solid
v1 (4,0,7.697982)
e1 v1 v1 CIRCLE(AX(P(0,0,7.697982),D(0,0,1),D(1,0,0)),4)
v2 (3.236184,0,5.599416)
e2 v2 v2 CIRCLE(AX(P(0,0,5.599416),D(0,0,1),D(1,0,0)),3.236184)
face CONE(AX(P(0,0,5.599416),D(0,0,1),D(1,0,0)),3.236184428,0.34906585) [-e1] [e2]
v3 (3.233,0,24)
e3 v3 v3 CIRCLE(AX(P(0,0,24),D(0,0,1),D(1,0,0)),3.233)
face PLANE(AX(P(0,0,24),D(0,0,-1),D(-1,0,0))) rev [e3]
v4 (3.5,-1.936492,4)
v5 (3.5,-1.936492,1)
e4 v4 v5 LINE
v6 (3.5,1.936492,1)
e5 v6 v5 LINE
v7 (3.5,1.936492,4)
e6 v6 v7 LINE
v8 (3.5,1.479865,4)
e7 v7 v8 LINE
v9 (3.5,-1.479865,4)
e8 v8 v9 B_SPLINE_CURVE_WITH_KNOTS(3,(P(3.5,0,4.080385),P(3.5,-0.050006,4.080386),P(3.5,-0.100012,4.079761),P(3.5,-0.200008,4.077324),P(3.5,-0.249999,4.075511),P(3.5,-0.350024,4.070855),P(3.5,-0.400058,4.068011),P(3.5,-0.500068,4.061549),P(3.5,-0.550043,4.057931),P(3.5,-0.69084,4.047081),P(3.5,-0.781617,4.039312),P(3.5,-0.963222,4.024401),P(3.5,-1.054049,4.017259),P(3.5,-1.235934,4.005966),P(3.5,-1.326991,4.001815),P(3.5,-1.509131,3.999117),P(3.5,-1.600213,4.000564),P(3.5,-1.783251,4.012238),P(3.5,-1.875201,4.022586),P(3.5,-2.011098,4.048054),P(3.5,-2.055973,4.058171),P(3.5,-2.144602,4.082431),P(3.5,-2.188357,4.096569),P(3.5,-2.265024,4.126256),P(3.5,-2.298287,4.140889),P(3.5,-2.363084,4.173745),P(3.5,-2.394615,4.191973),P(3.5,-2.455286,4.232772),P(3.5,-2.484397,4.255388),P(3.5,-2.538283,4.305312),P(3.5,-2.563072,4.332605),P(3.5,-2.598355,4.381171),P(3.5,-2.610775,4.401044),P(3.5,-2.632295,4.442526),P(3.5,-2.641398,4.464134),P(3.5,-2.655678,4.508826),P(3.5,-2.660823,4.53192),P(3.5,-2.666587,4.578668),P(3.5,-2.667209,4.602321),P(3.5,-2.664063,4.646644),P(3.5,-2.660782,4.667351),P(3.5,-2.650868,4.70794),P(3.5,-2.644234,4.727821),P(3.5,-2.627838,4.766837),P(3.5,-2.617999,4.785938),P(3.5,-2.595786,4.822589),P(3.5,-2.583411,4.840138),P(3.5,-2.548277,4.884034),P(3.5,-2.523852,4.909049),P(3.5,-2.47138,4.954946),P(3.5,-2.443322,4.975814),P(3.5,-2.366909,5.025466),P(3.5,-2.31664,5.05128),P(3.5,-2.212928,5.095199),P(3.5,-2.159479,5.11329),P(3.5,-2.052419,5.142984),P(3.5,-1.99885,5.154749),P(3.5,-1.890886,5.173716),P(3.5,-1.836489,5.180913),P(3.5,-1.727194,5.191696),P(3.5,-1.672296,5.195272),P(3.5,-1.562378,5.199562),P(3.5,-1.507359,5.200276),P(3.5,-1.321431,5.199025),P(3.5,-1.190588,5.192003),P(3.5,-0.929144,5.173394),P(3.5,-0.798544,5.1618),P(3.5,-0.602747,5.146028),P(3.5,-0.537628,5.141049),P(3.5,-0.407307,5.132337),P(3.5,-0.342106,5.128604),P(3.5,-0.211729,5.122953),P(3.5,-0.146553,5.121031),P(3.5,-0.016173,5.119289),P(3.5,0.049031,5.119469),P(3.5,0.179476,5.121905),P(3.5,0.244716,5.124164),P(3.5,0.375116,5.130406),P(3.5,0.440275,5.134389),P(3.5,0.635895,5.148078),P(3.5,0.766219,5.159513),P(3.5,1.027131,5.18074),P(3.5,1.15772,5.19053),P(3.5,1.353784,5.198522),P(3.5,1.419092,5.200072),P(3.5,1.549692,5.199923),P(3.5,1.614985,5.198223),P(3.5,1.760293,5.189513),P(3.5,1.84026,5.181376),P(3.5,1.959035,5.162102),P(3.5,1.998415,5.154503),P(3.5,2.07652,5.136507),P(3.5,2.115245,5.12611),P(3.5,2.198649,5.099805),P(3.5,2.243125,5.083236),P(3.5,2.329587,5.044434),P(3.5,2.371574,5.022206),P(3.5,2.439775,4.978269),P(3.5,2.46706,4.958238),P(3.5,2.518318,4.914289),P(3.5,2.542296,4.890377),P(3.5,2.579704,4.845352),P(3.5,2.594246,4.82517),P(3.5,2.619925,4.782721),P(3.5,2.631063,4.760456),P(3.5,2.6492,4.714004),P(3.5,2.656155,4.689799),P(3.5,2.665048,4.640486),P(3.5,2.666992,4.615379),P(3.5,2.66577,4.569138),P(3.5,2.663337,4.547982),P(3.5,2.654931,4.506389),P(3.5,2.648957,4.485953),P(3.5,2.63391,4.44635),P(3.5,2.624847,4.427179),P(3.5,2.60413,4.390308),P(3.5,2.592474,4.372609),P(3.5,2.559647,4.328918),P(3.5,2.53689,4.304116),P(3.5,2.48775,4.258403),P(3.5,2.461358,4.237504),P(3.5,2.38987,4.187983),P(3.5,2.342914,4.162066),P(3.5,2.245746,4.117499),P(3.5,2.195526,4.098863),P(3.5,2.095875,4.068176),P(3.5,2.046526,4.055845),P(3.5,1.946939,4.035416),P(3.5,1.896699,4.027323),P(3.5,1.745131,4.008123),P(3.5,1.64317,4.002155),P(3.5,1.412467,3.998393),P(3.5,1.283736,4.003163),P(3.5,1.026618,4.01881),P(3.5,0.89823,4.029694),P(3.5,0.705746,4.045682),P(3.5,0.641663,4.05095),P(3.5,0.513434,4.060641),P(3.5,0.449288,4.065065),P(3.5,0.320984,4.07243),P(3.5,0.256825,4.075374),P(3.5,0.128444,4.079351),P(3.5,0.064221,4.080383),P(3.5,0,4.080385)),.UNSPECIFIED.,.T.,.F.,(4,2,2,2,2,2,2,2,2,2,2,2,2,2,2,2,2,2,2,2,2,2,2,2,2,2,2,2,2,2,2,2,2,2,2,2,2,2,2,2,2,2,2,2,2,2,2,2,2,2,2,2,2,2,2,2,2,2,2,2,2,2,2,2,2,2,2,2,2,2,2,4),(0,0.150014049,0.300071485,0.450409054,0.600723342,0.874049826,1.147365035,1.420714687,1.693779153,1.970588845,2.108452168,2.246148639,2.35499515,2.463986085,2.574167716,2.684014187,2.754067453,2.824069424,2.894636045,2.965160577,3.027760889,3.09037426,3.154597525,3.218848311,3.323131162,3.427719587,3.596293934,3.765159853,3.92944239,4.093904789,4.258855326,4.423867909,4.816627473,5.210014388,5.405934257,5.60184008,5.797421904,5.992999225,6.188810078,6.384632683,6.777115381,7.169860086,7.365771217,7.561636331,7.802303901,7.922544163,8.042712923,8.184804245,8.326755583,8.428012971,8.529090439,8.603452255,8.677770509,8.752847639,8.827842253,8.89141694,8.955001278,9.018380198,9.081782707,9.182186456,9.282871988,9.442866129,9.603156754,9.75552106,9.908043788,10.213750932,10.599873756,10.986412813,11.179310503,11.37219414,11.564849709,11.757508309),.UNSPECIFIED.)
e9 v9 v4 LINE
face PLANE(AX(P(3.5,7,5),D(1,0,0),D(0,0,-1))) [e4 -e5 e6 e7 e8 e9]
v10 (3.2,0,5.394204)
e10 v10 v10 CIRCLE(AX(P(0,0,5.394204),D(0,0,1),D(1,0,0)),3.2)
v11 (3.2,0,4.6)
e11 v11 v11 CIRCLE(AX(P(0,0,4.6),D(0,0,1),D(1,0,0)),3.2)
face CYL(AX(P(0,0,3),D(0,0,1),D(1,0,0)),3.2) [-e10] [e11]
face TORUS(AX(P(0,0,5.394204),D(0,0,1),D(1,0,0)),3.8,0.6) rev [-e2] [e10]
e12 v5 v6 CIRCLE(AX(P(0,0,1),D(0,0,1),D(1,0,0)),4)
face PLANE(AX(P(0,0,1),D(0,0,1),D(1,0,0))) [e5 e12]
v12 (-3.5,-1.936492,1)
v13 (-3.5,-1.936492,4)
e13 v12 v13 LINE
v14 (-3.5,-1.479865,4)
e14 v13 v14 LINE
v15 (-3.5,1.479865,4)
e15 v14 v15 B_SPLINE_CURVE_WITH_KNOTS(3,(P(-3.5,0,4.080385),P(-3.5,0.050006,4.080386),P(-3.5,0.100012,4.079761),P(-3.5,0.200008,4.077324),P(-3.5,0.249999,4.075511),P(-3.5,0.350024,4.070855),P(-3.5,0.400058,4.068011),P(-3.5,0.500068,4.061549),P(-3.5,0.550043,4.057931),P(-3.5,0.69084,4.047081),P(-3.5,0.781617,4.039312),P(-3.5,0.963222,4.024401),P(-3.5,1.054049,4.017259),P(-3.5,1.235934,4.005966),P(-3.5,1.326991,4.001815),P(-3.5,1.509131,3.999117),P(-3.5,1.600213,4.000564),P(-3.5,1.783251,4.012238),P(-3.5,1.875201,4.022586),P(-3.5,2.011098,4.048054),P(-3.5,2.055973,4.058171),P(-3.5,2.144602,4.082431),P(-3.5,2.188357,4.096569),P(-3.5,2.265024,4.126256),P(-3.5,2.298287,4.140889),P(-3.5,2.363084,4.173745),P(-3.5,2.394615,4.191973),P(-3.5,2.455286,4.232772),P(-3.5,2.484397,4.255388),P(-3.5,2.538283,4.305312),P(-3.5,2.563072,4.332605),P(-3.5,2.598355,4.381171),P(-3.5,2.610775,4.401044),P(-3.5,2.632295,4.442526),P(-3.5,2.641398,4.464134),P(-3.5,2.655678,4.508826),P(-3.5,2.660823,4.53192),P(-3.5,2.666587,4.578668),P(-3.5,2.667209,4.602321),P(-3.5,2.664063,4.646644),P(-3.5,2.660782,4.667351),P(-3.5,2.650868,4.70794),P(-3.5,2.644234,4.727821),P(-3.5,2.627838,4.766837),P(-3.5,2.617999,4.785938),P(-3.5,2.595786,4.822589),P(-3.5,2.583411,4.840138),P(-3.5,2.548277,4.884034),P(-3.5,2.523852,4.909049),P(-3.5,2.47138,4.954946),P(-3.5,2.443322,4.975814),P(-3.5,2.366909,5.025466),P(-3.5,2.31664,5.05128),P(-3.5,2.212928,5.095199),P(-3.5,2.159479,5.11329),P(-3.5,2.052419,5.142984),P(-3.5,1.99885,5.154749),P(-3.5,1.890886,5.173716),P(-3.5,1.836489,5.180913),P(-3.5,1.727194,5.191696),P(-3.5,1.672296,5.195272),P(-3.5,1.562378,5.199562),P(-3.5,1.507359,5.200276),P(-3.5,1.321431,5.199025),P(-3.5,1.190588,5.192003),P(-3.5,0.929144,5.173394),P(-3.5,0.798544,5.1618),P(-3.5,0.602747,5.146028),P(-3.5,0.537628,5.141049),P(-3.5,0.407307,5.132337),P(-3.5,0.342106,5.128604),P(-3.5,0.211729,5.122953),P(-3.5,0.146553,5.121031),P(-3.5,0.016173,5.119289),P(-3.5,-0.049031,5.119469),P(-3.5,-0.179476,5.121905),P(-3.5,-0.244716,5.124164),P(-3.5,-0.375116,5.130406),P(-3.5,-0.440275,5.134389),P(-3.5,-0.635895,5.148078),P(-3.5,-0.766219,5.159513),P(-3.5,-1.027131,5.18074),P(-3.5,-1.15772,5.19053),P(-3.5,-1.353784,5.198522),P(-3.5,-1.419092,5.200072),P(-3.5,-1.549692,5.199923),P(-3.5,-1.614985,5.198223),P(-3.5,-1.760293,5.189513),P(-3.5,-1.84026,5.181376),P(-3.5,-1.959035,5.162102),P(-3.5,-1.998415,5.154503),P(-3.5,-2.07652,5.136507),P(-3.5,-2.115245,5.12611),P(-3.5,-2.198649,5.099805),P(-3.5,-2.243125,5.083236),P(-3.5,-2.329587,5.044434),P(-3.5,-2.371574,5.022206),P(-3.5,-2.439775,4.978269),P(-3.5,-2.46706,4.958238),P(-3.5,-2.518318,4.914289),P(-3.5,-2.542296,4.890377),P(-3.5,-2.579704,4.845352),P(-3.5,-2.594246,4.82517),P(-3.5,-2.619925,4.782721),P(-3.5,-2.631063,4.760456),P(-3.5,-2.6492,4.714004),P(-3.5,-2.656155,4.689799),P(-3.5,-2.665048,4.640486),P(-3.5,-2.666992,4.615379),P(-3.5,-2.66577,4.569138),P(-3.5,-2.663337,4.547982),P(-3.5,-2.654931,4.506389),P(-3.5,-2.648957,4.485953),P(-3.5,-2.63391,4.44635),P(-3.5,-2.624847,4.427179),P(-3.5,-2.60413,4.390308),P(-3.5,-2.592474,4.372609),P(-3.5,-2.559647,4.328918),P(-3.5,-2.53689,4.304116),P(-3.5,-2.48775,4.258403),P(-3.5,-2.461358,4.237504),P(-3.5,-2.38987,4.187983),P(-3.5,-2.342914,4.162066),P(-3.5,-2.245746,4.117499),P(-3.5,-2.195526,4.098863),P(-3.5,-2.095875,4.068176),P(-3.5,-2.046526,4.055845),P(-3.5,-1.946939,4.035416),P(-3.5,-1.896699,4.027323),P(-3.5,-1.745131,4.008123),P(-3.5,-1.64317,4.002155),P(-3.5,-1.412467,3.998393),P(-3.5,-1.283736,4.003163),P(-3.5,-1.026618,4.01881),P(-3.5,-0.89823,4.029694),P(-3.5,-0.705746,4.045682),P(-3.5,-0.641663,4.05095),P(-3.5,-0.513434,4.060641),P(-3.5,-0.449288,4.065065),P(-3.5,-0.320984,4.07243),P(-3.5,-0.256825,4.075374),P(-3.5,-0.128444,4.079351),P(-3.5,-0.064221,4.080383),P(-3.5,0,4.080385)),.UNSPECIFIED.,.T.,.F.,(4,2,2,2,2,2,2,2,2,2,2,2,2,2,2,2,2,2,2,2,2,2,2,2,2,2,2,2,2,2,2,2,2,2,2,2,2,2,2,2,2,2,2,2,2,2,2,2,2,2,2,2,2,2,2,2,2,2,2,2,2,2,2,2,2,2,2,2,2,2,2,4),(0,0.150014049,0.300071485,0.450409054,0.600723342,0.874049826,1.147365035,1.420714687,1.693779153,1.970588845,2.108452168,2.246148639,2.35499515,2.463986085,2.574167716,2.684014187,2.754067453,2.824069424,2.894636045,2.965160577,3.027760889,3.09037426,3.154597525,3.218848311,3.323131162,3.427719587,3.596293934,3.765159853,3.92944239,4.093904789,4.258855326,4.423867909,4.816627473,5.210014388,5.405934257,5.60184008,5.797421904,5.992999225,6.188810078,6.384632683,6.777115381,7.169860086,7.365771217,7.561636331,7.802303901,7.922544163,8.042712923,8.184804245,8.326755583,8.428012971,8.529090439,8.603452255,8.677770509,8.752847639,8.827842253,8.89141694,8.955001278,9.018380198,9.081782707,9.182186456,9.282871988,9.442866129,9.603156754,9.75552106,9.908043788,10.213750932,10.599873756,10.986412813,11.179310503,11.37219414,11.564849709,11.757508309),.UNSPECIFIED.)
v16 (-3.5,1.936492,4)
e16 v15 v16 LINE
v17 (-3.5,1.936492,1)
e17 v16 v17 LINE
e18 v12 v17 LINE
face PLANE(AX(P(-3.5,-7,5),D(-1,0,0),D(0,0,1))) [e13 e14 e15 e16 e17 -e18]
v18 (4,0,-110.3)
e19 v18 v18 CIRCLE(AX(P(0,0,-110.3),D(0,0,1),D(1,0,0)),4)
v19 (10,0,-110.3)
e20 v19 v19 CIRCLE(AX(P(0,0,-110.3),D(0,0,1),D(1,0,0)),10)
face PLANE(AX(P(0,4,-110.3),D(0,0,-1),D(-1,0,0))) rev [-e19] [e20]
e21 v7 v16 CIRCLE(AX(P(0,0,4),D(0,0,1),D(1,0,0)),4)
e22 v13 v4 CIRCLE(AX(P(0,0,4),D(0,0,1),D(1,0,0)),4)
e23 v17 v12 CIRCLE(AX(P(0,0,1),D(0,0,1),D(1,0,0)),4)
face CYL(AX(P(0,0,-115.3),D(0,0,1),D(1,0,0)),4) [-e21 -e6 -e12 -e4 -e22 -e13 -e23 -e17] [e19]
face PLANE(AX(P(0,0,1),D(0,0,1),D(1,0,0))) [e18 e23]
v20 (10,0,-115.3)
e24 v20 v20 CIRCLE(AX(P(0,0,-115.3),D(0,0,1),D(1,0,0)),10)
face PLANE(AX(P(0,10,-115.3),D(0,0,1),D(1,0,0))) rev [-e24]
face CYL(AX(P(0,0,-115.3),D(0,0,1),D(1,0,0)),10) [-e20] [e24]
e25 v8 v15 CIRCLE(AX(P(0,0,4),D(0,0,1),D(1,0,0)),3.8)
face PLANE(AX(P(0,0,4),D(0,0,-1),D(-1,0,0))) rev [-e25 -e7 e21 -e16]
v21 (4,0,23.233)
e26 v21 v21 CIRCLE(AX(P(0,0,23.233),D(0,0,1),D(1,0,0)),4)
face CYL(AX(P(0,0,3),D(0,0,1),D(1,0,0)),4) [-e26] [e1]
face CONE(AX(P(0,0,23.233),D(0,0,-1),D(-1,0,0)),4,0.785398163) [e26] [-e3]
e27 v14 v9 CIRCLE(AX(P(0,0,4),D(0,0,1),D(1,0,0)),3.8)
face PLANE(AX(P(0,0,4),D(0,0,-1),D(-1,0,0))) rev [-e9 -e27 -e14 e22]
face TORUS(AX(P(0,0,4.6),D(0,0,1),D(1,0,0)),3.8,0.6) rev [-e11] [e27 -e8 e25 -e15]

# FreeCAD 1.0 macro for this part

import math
import FreeCAD as App
import Part
import Sketcher

V = App.Vector
Q = App.Units.Quantity

doc = App.newDocument("Part")
params = doc.addObject("Spreadsheet::Sheet", "Params")
for row, (alias, value) in enumerate([
    ("sketch1_width", "4 mm"),
    ("sketch1_width2", "10 mm"),
    ("sketch1_height", "5 mm"),
    ("sketch1_height2", "119.3 mm"),
    ("revolution_angle", "360 deg"),
    ("sketch2_radius", "0.6 mm"),
    ("sketch2_width", "4 mm"),
    ("sketch2_height", "21 mm"),
    ("sketch2_height2", "1 mm"),
    ("sketch2_width2", "0.2 mm"),
    ("revolution2_angle", "360 deg"),
    ("sketch3_width", "7 mm"),
    ("sketch3_width2", "14 mm"),
    ("sketch3_height", "21 mm"),
    ("pocket1_length", "4 mm"),
], start=1):
    params.set(f"A{row}", alias)
    params.set(f"B{row}", "=" + value)
    params.setAlias(f"B{row}", alias)

body = doc.addObject("PartDesign::Body", "Body")

sketch1 = body.newObject("Sketcher::SketchObject", "Sketch")
sketch1.AttachmentSupport = (doc.getObject("YZ_Plane"), [""])
sketch1.MapMode = "FlatFace"
sketch1.addGeometry([
    Part.LineSegment(V(4, 4, 0), V(0, 4, 0)),
    Part.LineSegment(V(0, 4, 0), V(0, -115.3, 0)),
    Part.LineSegment(V(0, -115.3, 0), V(10, -115.3, 0)),
    Part.LineSegment(V(10, -115.3, 0), V(10, -110.3, 0)),
    Part.LineSegment(V(10, -110.3, 0), V(4, -110.3, 0)),
    Part.LineSegment(V(4, -110.3, 0), V(4, 4, 0)),
], False)
sketch1.addConstraint([
    Sketcher.Constraint("Coincident", 0, 2, 1, 1),
    Sketcher.Constraint("Coincident", 1, 2, 2, 1),
    Sketcher.Constraint("Coincident", 2, 2, 3, 1),
    Sketcher.Constraint("Coincident", 3, 2, 4, 1),
    Sketcher.Constraint("Coincident", 4, 2, 5, 1),
    Sketcher.Constraint("Coincident", 5, 2, 0, 1),
    Sketcher.Constraint("Horizontal", 0),
    Sketcher.Constraint("Vertical", 1),
    Sketcher.Constraint("Horizontal", 2),
    Sketcher.Constraint("Vertical", 3),
    Sketcher.Constraint("Horizontal", 4),
    Sketcher.Constraint("Vertical", 5),
    Sketcher.Constraint("PointOnObject", 0, 2, -2),
    Sketcher.Constraint("DistanceX", 0, 2, 0, 1, 4.0),
    Sketcher.Constraint("DistanceX", 2, 1, 2, 2, 10.0),
    Sketcher.Constraint("DistanceY", 3, 1, 3, 2, 5.0),
    Sketcher.Constraint("DistanceY", 1, 2, 1, 1, 119.3),
    Sketcher.Constraint("DistanceY", -1, 1, 0, 2, 4.0),
])
sketch1.setExpression("Constraints[13]", "Params.sketch1_width")
sketch1.setExpression("Constraints[14]", "Params.sketch1_width2")
sketch1.setExpression("Constraints[15]", "Params.sketch1_height")
sketch1.setExpression("Constraints[16]", "Params.sketch1_height2")
revolution = body.newObject("PartDesign::Revolution", "Revolution")
revolution.Profile = sketch1
revolution.ReferenceAxis = (sketch1, ["V_Axis"])
revolution.setExpression("Angle", "Params.revolution_angle")

sketch2 = body.newObject("Sketcher::SketchObject", "Sketch001")
sketch2.AttachmentSupport = (doc.getObject("YZ_Plane"), [""])
sketch2.MapMode = "FlatFace"
sketch2.addGeometry([
    Part.LineSegment(V(3.23, 24, 0), V(0, 24, 0)),
    Part.LineSegment(V(0, 24, 0), V(0, 3, 0)),
    Part.LineSegment(V(0, 3, 0), V(4, 3, 0)),
    Part.LineSegment(V(4, 3, 0), V(4, 4, 0)),
    Part.LineSegment(V(4, 4, 0), V(3.8, 4, 0)),
    Part.ArcOfCircle(Part.Circle(V(3.8, 4.6, 0), V(0, 0, 1), 0.6), math.radians(180), math.radians(270)),
    Part.LineSegment(V(3.2, 4.6, 0), V(3.2, 5.39, 0)),
    Part.ArcOfCircle(Part.Circle(V(3.8, 5.39, 0), V(0, 0, 1), 0.6), math.radians(160), math.radians(180)),
    Part.LineSegment(V(3.24, 5.6, 0), V(4, 7.7, 0)),
    Part.LineSegment(V(4, 7.7, 0), V(4, 23.23, 0)),
    Part.LineSegment(V(4, 23.23, 0), V(3.23, 24, 0)),
], False)
sketch2.addConstraint([
    Sketcher.Constraint("Coincident", 0, 2, 1, 1),
    Sketcher.Constraint("Coincident", 1, 2, 2, 1),
    Sketcher.Constraint("Coincident", 2, 2, 3, 1),
    Sketcher.Constraint("Coincident", 3, 2, 4, 1),
    Sketcher.Constraint("Tangent", 4, 2, 5, 2),
    Sketcher.Constraint("Tangent", 5, 1, 6, 1),
    Sketcher.Constraint("Tangent", 6, 2, 7, 2),
    Sketcher.Constraint("Tangent", 7, 1, 8, 1),
    Sketcher.Constraint("Coincident", 8, 2, 9, 1),
    Sketcher.Constraint("Coincident", 9, 2, 10, 1),
    Sketcher.Constraint("Coincident", 10, 2, 0, 1),
    Sketcher.Constraint("Horizontal", 0),
    Sketcher.Constraint("Vertical", 1),
    Sketcher.Constraint("Horizontal", 2),
    Sketcher.Constraint("Vertical", 3),
    Sketcher.Constraint("Horizontal", 4),
    Sketcher.Constraint("Vertical", 6),
    Sketcher.Constraint("Vertical", 9),
    Sketcher.Constraint("Equal", 5, 7),
    Sketcher.Constraint("PointOnObject", 0, 2, -2),
    Sketcher.Constraint("Vertical", 3, 2, 8, 2),
    Sketcher.Constraint("Radius", 5, 0.6),
    Sketcher.Constraint("DistanceX", 2, 1, 2, 2, 4.0),
    Sketcher.Constraint("DistanceY", 1, 2, 1, 1, 21.0),
    Sketcher.Constraint("DistanceY", 3, 1, 3, 2, 1.0),
    Sketcher.Constraint("Angle", 8, Q("70 deg")),
    Sketcher.Constraint("Angle", 10, Q("135 deg")),
    Sketcher.Constraint("DistanceX", 4, 2, 4, 1, 0.2),
    Sketcher.Constraint("DistanceY", -1, 1, 0, 2, 24.0),
    Sketcher.Constraint("DistanceX", 0, 2, 0, 1, 3.233),
    Sketcher.Constraint("DistanceY", 9, 1, 9, 2, 15.535018),
])
sketch2.setExpression("Constraints[21]", "Params.sketch2_radius")
sketch2.setExpression("Constraints[22]", "Params.sketch2_width")
sketch2.setExpression("Constraints[23]", "Params.sketch2_height")
sketch2.setExpression("Constraints[24]", "Params.sketch2_height2")
sketch2.setExpression("Constraints[27]", "Params.sketch2_width2")
revolution2 = body.newObject("PartDesign::Revolution", "Revolution001")
revolution2.Profile = sketch2
revolution2.ReferenceAxis = (sketch2, ["V_Axis"])
revolution2.setExpression("Angle", "Params.revolution2_angle")

sketch3 = body.newObject("Sketcher::SketchObject", "Sketch002")
sketch3.AttachmentSupport = (doc.getObject("XY_Plane"), [""])
sketch3.MapMode = "FlatFace"
sketch3.AttachmentOffset = App.Placement(V(0, 0, 1), App.Rotation())
sketch3.addGeometry([
    Part.LineSegment(V(-7, 14, 0), V(-7, -7, 0)),
    Part.LineSegment(V(-7, -7, 0), V(-3.5, -7, 0)),
    Part.LineSegment(V(-3.5, -7, 0), V(-3.5, 7, 0)),
    Part.LineSegment(V(-3.5, 7, 0), V(3.5, 7, 0)),
    Part.LineSegment(V(3.5, 7, 0), V(3.5, -7, 0)),
    Part.LineSegment(V(3.5, -7, 0), V(7, -7, 0)),
    Part.LineSegment(V(7, -7, 0), V(7, 14, 0)),
    Part.LineSegment(V(7, 14, 0), V(-7, 14, 0)),
], False)
sketch3.addConstraint([
    Sketcher.Constraint("Coincident", 0, 2, 1, 1),
    Sketcher.Constraint("Coincident", 1, 2, 2, 1),
    Sketcher.Constraint("Coincident", 2, 2, 3, 1),
    Sketcher.Constraint("Coincident", 3, 2, 4, 1),
    Sketcher.Constraint("Coincident", 4, 2, 5, 1),
    Sketcher.Constraint("Coincident", 5, 2, 6, 1),
    Sketcher.Constraint("Coincident", 6, 2, 7, 1),
    Sketcher.Constraint("Coincident", 7, 2, 0, 1),
    Sketcher.Constraint("Vertical", 0),
    Sketcher.Constraint("Horizontal", 1),
    Sketcher.Constraint("Vertical", 2),
    Sketcher.Constraint("Horizontal", 3),
    Sketcher.Constraint("Vertical", 4),
    Sketcher.Constraint("Horizontal", 5),
    Sketcher.Constraint("Vertical", 6),
    Sketcher.Constraint("Horizontal", 7),
    Sketcher.Constraint("Symmetric", 1, 2, 3, 2, -1, 1),
    Sketcher.Constraint("Symmetric", 0, 2, 5, 2, -2),
    Sketcher.Constraint("Equal", 7, 2),
    Sketcher.Constraint("DistanceX", 3, 1, 3, 2, 7.0),
    Sketcher.Constraint("DistanceX", 7, 2, 7, 1, 14.0),
    Sketcher.Constraint("DistanceY", 0, 2, 0, 1, 21.0),
])
sketch3.setExpression("Constraints[19]", "Params.sketch3_width")
sketch3.setExpression("Constraints[20]", "Params.sketch3_width2")
sketch3.setExpression("Constraints[21]", "Params.sketch3_height")
pocket1 = body.newObject("PartDesign::Pocket", "Pocket")
pocket1.Profile = sketch3
pocket1.setExpression("Length", "Params.pocket1_length")
pocket1.Reversed = True

doc.recompute()
